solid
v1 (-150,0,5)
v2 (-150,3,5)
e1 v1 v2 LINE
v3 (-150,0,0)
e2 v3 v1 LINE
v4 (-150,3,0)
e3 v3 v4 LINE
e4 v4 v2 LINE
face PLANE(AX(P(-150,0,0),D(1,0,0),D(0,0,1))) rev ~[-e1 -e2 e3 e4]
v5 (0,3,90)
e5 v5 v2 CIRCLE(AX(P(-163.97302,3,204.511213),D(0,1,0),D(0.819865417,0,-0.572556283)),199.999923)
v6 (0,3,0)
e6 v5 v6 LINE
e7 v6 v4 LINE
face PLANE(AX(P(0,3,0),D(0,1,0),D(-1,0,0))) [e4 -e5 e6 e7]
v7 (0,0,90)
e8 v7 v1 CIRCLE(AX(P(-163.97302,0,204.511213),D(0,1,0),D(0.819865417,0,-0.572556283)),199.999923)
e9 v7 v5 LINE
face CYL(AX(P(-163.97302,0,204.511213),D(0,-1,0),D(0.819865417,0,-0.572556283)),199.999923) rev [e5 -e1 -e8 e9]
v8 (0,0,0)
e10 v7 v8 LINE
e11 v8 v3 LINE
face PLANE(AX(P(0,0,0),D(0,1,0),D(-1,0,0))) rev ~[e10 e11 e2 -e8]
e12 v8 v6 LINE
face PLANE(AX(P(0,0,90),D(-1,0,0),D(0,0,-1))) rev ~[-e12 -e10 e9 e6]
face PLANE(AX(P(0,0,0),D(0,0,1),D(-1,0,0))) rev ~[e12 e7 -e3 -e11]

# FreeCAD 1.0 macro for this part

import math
import FreeCAD as App
import Part
import Sketcher
from FreeCAD import Vector

doc = App.newDocument("Part")
body = doc.addObject("PartDesign::Body", "Body")

# Sketch on XZ plane
sketch1 = body.newObject("Sketcher::SketchObject", "Sketch")
sketch1.AttachmentSupport = (doc.getObject("XZ_Plane"), [""])
sketch1.MapMode = "FlatFace"
sketch1.addGeometry([
    Part.ArcOfCircle(Part.Circle(Vector(-164, 205, 0), Vector(0, 0, 1), 200), math.radians(-86), math.radians(-35)),
    Part.LineSegment(Vector(0, 90, 0), Vector(0, 0, 0)),
    Part.LineSegment(Vector(0, 0, 0), Vector(-150, 0, 0)),
    Part.LineSegment(Vector(-150, 0, 0), Vector(-150, 5, 0)),
], False)
sketch1.addConstraint([
    Sketcher.Constraint("Coincident", 0, 2, 1, 1),
    Sketcher.Constraint("Coincident", 1, 2, 2, 1),
    Sketcher.Constraint("Coincident", 2, 2, 3, 1),
    Sketcher.Constraint("Coincident", 3, 2, 0, 1),
    Sketcher.Constraint("Vertical", 1),
    Sketcher.Constraint("Horizontal", 2),
    Sketcher.Constraint("Vertical", 3),
    Sketcher.Constraint("Coincident", 1, 2, -1, 1),
    Sketcher.Constraint("Radius", 0, 200.0),
    Sketcher.Constraint("DistanceX", 2, 2, 2, 1, 150.0),
    Sketcher.Constraint("DistanceY", 1, 2, 1, 1, 90.0),
    Sketcher.Constraint("DistanceY", 3, 1, 3, 2, 5.0),
])
pad1 = body.newObject("PartDesign::Pad", "Pad")
pad1.Profile = sketch1
pad1.Length = 3
pad1.Reversed = True

doc.recompute()
